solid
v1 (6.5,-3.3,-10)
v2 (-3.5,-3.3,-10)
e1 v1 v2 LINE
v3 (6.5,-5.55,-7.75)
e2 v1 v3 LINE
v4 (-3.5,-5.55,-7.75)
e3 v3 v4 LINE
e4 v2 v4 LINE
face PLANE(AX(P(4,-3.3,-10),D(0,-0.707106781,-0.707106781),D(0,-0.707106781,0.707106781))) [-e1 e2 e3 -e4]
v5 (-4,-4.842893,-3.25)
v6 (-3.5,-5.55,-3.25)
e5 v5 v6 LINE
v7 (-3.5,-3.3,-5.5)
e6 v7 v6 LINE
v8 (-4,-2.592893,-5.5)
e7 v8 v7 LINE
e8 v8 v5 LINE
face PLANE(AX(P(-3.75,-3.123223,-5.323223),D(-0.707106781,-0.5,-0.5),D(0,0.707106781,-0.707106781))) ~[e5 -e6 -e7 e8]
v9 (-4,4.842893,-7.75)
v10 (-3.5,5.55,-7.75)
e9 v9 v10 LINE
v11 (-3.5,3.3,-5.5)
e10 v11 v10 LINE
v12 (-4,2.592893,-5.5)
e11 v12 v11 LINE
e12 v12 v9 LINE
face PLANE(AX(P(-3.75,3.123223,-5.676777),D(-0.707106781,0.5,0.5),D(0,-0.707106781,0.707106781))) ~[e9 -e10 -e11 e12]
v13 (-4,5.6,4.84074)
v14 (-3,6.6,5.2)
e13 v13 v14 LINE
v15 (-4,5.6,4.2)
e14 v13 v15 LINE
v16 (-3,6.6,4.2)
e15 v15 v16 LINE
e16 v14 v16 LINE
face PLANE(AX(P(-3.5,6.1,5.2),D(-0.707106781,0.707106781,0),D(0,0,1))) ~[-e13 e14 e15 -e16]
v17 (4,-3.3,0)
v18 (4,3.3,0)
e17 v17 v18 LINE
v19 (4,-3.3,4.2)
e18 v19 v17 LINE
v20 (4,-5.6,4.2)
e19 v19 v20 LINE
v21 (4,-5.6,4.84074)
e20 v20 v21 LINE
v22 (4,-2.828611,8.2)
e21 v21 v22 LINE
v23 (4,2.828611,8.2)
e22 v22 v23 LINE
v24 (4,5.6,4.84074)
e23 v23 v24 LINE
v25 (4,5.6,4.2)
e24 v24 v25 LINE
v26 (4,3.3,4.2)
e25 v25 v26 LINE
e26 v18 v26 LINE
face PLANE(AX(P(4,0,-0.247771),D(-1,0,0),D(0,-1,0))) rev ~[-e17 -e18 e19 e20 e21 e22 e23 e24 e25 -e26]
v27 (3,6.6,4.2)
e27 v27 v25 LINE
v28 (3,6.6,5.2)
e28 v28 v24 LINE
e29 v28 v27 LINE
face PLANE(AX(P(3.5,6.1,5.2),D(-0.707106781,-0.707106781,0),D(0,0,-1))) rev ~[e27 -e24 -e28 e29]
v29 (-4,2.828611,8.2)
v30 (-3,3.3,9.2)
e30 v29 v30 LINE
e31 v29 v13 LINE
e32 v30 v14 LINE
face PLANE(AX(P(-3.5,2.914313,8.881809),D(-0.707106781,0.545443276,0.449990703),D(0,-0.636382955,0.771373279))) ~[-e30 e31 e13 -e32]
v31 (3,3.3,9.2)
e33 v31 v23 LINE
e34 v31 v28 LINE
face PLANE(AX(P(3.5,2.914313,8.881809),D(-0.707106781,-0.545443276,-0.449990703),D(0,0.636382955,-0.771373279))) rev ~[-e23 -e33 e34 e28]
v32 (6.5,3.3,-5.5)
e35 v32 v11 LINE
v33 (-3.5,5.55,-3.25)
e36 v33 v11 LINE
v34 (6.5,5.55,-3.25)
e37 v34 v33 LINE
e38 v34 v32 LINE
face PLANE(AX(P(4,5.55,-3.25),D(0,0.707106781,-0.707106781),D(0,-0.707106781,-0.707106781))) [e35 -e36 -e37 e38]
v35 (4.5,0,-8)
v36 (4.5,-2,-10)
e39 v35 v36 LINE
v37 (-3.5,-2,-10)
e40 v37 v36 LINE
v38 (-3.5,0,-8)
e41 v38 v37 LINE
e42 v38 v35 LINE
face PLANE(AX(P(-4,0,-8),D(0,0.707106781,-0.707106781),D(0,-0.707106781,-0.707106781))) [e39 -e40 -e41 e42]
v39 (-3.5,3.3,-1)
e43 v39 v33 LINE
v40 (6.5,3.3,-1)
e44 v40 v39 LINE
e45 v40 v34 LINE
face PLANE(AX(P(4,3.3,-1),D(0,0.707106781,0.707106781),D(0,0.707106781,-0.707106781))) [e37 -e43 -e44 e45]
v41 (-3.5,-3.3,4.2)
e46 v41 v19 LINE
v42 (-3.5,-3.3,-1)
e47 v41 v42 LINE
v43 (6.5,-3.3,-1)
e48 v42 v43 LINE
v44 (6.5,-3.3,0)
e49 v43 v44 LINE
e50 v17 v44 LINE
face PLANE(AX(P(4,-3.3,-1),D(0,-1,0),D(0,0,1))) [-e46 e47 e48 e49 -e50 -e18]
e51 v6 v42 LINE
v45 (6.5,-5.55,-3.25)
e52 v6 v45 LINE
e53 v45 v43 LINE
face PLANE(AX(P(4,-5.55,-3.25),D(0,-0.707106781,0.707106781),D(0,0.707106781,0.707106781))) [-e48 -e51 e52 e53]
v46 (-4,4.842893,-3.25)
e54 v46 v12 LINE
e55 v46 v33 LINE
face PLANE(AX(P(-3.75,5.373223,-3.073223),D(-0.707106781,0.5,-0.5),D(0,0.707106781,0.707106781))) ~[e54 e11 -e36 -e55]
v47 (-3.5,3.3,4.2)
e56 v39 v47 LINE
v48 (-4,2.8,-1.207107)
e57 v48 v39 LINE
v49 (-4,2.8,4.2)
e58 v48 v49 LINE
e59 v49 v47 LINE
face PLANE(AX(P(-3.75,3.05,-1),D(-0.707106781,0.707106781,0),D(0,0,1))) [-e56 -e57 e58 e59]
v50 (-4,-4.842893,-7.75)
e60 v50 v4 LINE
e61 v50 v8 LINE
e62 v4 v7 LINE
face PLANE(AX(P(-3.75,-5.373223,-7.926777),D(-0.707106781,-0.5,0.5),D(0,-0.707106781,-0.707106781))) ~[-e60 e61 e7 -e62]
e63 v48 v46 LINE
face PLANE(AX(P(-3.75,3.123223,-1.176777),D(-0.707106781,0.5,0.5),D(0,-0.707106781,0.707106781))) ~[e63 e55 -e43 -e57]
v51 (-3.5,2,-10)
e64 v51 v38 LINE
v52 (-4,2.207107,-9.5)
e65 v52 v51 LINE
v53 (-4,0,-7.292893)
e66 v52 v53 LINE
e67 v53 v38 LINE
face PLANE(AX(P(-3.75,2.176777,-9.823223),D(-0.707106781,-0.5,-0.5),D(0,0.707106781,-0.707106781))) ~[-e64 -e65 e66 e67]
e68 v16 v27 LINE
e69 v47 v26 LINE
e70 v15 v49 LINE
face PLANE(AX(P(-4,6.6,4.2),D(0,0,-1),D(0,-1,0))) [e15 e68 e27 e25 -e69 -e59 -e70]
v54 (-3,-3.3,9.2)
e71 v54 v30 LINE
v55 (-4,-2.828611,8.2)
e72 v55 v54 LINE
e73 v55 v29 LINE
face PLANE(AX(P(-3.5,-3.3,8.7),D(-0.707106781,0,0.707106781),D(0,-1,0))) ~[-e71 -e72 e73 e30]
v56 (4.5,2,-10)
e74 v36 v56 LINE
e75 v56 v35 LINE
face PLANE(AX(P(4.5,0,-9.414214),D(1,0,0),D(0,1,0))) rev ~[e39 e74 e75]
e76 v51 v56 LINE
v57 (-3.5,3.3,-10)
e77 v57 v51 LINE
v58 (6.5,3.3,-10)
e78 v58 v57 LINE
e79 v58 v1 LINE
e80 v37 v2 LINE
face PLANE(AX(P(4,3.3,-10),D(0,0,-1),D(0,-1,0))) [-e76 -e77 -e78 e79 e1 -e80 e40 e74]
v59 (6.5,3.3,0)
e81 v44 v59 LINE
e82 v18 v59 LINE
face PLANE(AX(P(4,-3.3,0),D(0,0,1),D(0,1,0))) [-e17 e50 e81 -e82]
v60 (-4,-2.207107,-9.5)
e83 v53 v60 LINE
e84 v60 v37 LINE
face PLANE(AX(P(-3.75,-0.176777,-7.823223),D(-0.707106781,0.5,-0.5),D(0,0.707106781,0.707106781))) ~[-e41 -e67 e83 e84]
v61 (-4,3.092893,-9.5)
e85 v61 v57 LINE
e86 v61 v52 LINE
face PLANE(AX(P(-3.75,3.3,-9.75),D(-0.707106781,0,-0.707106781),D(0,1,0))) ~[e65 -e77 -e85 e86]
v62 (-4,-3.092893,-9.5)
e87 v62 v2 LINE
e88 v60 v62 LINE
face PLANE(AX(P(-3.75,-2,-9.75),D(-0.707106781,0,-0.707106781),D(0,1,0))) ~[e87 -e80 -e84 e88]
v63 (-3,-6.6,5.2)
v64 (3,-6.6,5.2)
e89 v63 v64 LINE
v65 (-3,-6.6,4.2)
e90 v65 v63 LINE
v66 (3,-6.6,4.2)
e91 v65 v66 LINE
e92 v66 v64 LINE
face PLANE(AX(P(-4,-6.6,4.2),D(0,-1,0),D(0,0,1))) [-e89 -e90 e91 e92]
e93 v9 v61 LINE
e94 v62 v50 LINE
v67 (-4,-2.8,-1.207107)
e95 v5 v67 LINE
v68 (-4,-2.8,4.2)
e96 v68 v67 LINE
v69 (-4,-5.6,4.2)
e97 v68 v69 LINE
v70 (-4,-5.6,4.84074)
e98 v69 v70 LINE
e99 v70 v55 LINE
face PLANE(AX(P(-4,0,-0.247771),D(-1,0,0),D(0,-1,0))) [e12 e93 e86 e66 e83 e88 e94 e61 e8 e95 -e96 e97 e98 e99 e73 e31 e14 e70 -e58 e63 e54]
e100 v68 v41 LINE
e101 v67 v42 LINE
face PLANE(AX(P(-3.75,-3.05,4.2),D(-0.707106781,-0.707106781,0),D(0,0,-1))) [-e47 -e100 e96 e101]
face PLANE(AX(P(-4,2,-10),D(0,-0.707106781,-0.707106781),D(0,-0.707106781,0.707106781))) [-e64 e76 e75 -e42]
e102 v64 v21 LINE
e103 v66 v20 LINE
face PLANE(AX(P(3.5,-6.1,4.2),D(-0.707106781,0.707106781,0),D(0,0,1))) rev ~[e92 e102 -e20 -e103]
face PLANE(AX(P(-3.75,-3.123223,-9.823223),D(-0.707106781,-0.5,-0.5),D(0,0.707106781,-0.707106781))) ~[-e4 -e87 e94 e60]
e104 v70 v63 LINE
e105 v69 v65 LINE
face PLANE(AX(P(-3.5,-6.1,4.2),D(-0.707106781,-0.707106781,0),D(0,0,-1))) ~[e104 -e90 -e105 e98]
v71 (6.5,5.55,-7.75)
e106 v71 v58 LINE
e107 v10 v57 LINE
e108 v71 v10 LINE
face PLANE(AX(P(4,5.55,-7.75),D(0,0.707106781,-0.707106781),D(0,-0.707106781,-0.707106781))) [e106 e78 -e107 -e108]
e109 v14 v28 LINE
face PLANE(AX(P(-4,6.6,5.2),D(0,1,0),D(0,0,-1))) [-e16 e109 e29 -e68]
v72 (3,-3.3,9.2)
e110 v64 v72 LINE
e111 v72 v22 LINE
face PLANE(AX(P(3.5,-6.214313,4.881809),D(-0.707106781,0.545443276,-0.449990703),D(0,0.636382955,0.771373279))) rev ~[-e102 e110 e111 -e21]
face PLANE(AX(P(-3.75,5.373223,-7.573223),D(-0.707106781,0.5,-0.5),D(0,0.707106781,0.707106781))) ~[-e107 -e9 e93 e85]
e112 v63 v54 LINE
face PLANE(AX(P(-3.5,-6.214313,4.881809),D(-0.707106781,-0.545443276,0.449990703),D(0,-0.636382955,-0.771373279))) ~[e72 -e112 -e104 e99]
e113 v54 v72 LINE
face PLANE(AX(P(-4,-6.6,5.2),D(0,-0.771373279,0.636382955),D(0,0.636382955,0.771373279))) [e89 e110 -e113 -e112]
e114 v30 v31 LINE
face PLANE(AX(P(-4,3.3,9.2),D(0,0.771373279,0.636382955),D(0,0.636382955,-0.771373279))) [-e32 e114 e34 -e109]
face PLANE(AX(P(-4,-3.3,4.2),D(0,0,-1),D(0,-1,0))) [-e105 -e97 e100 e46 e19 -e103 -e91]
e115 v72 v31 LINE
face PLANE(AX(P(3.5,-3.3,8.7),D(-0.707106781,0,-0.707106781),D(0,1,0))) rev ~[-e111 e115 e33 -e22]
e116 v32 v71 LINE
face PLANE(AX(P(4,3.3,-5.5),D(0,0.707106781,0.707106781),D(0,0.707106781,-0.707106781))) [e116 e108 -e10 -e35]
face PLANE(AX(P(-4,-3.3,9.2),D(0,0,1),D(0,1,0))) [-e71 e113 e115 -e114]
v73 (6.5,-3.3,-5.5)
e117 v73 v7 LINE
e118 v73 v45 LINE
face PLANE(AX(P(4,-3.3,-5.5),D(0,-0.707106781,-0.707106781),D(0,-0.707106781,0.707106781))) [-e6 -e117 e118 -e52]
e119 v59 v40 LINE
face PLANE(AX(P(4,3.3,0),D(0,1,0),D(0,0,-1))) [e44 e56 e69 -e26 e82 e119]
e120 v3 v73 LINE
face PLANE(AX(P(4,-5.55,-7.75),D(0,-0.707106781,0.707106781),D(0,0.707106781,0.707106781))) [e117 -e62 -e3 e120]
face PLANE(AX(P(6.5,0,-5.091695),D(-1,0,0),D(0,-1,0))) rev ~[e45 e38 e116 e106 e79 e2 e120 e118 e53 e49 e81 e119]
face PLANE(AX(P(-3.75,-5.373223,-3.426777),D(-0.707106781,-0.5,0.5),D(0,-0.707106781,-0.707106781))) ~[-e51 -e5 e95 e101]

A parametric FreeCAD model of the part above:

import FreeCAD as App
import Part
import Sketcher
from FreeCAD import Vector
Q = App.Units.Quantity


def edges_at(feature, points):
    """Names of the edges that pass closest to the given points."""
    edges = feature.Shape.Edges
    near = lambda p: min(range(len(edges)), key=lambda i: edges[i].distToShape(Part.Vertex(*p))[0])
    return sorted({f"Edge{near(p) + 1}" for p in points})


def add_polygon(sketch, points):
    """Adds a closed chain of lines whose ends are joined by coincident constraints."""
    first, n = sketch.GeometryCount, len(points)
    for a, b in zip(points, points[1:] + points[:1]):
        sketch.addGeometry(Part.LineSegment(App.Vector(*a, 0), App.Vector(*b, 0)), False)
    for i in range(n):
        sketch.addConstraint(Sketcher.Constraint("Coincident", first + i, 2, first + (i + 1) % n, 1))

doc = App.newDocument("Part")
body = doc.addObject("PartDesign::Body", "Body")

# Sketch on YZ plane
sketch1 = body.newObject("Sketcher::SketchObject", "Sketch")
sketch1.AttachmentSupport = (doc.getObject("YZ_Plane"), [""])
sketch1.MapMode = "FlatFace"
add_polygon(sketch1, [(3.3, 9.2), (-3.3, 9.2), (-6.6, 5.2), (-6.6, 4.2), (-3.3, 4.2), (-3.3, -1), (-5.5, -3.2), (-3.3, -5.5), (-5.5, -7.8), (-3.3, -10), (3.3, -10), (5.5, -7.8), (3.3, -5.5), (5.5, -3.2), (3.3, -1), (3.3, 4.2), (6.6, 4.2), (6.6, 5.2)])  # lines 0-17
sketch1.addConstraint(Sketcher.Constraint("Horizontal", 0))
sketch1.addConstraint(Sketcher.Constraint("Vertical", 2))
sketch1.addConstraint(Sketcher.Constraint("Horizontal", 3))
sketch1.addConstraint(Sketcher.Constraint("Vertical", 4))
sketch1.addConstraint(Sketcher.Constraint("Horizontal", 9))
sketch1.addConstraint(Sketcher.Constraint("Vertical", 14))
sketch1.addConstraint(Sketcher.Constraint("Horizontal", 15))
sketch1.addConstraint(Sketcher.Constraint("Vertical", 16))
sketch1.addConstraint(Sketcher.Constraint("Symmetric", 7, 2, 10, 2, -2))
sketch1.addConstraint(Sketcher.Constraint("Symmetric", 6, 2, 11, 2, -2))
sketch1.addConstraint(Sketcher.Constraint("Symmetric", 5, 2, 12, 2, -2))
sketch1.addConstraint(Sketcher.Constraint("Symmetric", 4, 2, 13, 2, -2))
sketch1.addConstraint(Sketcher.Constraint("Symmetric", 2, 2, 15, 2, -2))
sketch1.addConstraint(Sketcher.Constraint("Perpendicular", 5, 6))
sketch1.addConstraint(Sketcher.Constraint("Perpendicular", 6, 7))
sketch1.addConstraint(Sketcher.Constraint("Perpendicular", 7, 8))
sketch1.addConstraint(Sketcher.Constraint("Perpendicular", 8, 10))
sketch1.addConstraint(Sketcher.Constraint("Perpendicular", 10, 11))
sketch1.addConstraint(Sketcher.Constraint("Horizontal", 1, 2, 16, 2))
sketch1.addConstraint(Sketcher.Constraint("Vertical", 0, 2, 3, 2))
sketch1.addConstraint(Sketcher.Constraint("Vertical", 4, 2, 6, 2))
sketch1.addConstraint(Sketcher.Constraint("Vertical", 5, 2, 7, 2))
sketch1.addConstraint(Sketcher.Constraint("Vertical", 6, 2, 8, 2))
sketch1.addConstraint(Sketcher.Constraint("Vertical", 14, 2, 17, 2))
sketch1.addConstraint(Sketcher.Constraint("DistanceY", 2, 2, 2, 1, Q("1 mm")))
sketch1.addConstraint(Sketcher.Constraint("DistanceX", 0, 2, 0, 1, Q("6.6 mm")))
sketch1.addConstraint(Sketcher.Constraint("DistanceX", 3, 1, 3, 2, Q("3.3 mm")))
sketch1.addConstraint(Sketcher.Constraint("DistanceY", 4, 2, 4, 1, Q("5.2 mm")))
sketch1.addConstraint(Sketcher.Constraint("DistanceY", 4, 2, -1, 1, Q("1 mm")))
sketch1.addConstraint(Sketcher.Constraint("DistanceY", 8, 2, -1, 1, Q("10 mm")))
sketch1.addConstraint(Sketcher.Constraint("DistanceY", 1, 2, 0, 2, Q("4 mm")))
pad1 = body.newObject("PartDesign::Pad", "Pad")
pad1.Profile = sketch1
pad1.Type = "TwoLengths"
pad1.Length = 4
pad1.Length2 = 4

# Sketch on YZ plane
sketch2 = body.newObject("Sketcher::SketchObject", "Sketch001")
sketch2.AttachmentSupport = (doc.getObject("YZ_Plane"), [""])
sketch2.MapMode = "FlatFace"
sketch2.AttachmentOffset = App.Placement(Vector(0, 0, 4), App.Rotation())
add_polygon(sketch2, [(3.3, 0), (-3.3, 0), (-3.3, -1), (-5.5, -3.2), (-3.3, -5.5), (-5.5, -7.8), (-3.3, -10), (3.3, -10), (5.5, -7.8), (3.3, -5.5), (5.5, -3.2), (3.3, -1)])  # lines 0-11
sketch2.addConstraint(Sketcher.Constraint("Horizontal", 0))
sketch2.addConstraint(Sketcher.Constraint("Vertical", 1))
sketch2.addConstraint(Sketcher.Constraint("Horizontal", 6))
sketch2.addConstraint(Sketcher.Constraint("Vertical", 11))
sketch2.addConstraint(Sketcher.Constraint("Symmetric", 0, 2, 11, 2, -1, 1))
sketch2.addConstraint(Sketcher.Constraint("Symmetric", 4, 2, 7, 2, -2))
sketch2.addConstraint(Sketcher.Constraint("Symmetric", 3, 2, 8, 2, -2))
sketch2.addConstraint(Sketcher.Constraint("Symmetric", 2, 2, 9, 2, -2))
sketch2.addConstraint(Sketcher.Constraint("Perpendicular", 2, 3))
sketch2.addConstraint(Sketcher.Constraint("Perpendicular", 3, 4))
sketch2.addConstraint(Sketcher.Constraint("Perpendicular", 4, 5))
sketch2.addConstraint(Sketcher.Constraint("Perpendicular", 5, 7))
sketch2.addConstraint(Sketcher.Constraint("Perpendicular", 7, 8))
sketch2.addConstraint(Sketcher.Constraint("Perpendicular", 9, 10))
sketch2.addConstraint(Sketcher.Constraint("Vertical", 1, 2, 3, 2))
sketch2.addConstraint(Sketcher.Constraint("Vertical", 2, 2, 4, 2))
sketch2.addConstraint(Sketcher.Constraint("Vertical", 3, 2, 5, 2))
sketch2.addConstraint(Sketcher.Constraint("DistanceY", 1, 2, 1, 1, Q("1 mm")))
sketch2.addConstraint(Sketcher.Constraint("DistanceX", 0, 2, 0, 1, Q("6.6 mm")))
sketch2.addConstraint(Sketcher.Constraint("DistanceY", 5, 2, -1, 1, Q("10 mm")))
pad2 = body.newObject("PartDesign::Pad", "Pad001")
pad2.Profile = sketch2
pad2.Length = 2.5
doc.recompute()

chamfer = body.newObject("PartDesign::Chamfer", "Chamfer")
chamfer.Base = (pad2, edges_at(pad2, [
    (-4, -4.95, 7.2),
    (-4, -6.6, 4.7),
    (-4, 4.95, 7.2),
    (4, 4.95, 7.2),
    (4, 0, 9.2),
    (4, -4.95, 7.2),
    (4, -6.6, 4.7),
    (4, 6.6, 4.7),
    (-4, 6.6, 4.7),
    (-4, 0, 9.2),
]))
chamfer.Size = 1

# Sketch on YZ plane
sketch3 = body.newObject("Sketcher::SketchObject", "Sketch002")
sketch3.AttachmentSupport = (doc.getObject("YZ_Plane"), [""])
sketch3.MapMode = "FlatFace"
sketch3.AttachmentOffset = App.Placement(Vector(0, 0, -4), App.Rotation())
add_polygon(sketch3, [(-2, -10), (0, -8), (2, -10)])  # lines 0-2
sketch3.addConstraint(Sketcher.Constraint("Horizontal", 2))
sketch3.addConstraint(Sketcher.Constraint("PointOnObject", 0, 2, -2))
sketch3.addConstraint(Sketcher.Constraint("Perpendicular", 0, 1))
sketch3.addConstraint(Sketcher.Constraint("Equal", 0, 1))
sketch3.addConstraint(Sketcher.Constraint("DistanceX", 2, 2, 2, 1, Q("4 mm")))
sketch3.addConstraint(Sketcher.Constraint("DistanceY", 0, 2, -1, 1, Q("8 mm")))
pocket1 = body.newObject("PartDesign::Pocket", "Pocket")
pocket1.Profile = sketch3
pocket1.Length = 8.5
pocket1.Reversed = True
doc.recompute()

chamfer2 = body.newObject("PartDesign::Chamfer", "Chamfer001")
chamfer2.Base = (pocket1, edges_at(pocket1, [
    (-4, 2.65, -10),
    (-4, 1, -9),
    (-4, -1, -9),
    (-4, -3.3, 1.6),
    (-4, -4.425, -2.125),
    (-4, -4.425, -4.375),
    (-4, -4.425, -6.625),
    (-4, -4.425, -8.875),
    (-4, -2.65, -10),
    (-4, 4.425, -8.875),
    (-4, 4.425, -6.625),
    (-4, 4.425, -4.375),
    (-4, 4.425, -2.125),
    (-4, 3.3, 1.6),
]))
chamfer2.Size = 0.5

doc.recompute()
